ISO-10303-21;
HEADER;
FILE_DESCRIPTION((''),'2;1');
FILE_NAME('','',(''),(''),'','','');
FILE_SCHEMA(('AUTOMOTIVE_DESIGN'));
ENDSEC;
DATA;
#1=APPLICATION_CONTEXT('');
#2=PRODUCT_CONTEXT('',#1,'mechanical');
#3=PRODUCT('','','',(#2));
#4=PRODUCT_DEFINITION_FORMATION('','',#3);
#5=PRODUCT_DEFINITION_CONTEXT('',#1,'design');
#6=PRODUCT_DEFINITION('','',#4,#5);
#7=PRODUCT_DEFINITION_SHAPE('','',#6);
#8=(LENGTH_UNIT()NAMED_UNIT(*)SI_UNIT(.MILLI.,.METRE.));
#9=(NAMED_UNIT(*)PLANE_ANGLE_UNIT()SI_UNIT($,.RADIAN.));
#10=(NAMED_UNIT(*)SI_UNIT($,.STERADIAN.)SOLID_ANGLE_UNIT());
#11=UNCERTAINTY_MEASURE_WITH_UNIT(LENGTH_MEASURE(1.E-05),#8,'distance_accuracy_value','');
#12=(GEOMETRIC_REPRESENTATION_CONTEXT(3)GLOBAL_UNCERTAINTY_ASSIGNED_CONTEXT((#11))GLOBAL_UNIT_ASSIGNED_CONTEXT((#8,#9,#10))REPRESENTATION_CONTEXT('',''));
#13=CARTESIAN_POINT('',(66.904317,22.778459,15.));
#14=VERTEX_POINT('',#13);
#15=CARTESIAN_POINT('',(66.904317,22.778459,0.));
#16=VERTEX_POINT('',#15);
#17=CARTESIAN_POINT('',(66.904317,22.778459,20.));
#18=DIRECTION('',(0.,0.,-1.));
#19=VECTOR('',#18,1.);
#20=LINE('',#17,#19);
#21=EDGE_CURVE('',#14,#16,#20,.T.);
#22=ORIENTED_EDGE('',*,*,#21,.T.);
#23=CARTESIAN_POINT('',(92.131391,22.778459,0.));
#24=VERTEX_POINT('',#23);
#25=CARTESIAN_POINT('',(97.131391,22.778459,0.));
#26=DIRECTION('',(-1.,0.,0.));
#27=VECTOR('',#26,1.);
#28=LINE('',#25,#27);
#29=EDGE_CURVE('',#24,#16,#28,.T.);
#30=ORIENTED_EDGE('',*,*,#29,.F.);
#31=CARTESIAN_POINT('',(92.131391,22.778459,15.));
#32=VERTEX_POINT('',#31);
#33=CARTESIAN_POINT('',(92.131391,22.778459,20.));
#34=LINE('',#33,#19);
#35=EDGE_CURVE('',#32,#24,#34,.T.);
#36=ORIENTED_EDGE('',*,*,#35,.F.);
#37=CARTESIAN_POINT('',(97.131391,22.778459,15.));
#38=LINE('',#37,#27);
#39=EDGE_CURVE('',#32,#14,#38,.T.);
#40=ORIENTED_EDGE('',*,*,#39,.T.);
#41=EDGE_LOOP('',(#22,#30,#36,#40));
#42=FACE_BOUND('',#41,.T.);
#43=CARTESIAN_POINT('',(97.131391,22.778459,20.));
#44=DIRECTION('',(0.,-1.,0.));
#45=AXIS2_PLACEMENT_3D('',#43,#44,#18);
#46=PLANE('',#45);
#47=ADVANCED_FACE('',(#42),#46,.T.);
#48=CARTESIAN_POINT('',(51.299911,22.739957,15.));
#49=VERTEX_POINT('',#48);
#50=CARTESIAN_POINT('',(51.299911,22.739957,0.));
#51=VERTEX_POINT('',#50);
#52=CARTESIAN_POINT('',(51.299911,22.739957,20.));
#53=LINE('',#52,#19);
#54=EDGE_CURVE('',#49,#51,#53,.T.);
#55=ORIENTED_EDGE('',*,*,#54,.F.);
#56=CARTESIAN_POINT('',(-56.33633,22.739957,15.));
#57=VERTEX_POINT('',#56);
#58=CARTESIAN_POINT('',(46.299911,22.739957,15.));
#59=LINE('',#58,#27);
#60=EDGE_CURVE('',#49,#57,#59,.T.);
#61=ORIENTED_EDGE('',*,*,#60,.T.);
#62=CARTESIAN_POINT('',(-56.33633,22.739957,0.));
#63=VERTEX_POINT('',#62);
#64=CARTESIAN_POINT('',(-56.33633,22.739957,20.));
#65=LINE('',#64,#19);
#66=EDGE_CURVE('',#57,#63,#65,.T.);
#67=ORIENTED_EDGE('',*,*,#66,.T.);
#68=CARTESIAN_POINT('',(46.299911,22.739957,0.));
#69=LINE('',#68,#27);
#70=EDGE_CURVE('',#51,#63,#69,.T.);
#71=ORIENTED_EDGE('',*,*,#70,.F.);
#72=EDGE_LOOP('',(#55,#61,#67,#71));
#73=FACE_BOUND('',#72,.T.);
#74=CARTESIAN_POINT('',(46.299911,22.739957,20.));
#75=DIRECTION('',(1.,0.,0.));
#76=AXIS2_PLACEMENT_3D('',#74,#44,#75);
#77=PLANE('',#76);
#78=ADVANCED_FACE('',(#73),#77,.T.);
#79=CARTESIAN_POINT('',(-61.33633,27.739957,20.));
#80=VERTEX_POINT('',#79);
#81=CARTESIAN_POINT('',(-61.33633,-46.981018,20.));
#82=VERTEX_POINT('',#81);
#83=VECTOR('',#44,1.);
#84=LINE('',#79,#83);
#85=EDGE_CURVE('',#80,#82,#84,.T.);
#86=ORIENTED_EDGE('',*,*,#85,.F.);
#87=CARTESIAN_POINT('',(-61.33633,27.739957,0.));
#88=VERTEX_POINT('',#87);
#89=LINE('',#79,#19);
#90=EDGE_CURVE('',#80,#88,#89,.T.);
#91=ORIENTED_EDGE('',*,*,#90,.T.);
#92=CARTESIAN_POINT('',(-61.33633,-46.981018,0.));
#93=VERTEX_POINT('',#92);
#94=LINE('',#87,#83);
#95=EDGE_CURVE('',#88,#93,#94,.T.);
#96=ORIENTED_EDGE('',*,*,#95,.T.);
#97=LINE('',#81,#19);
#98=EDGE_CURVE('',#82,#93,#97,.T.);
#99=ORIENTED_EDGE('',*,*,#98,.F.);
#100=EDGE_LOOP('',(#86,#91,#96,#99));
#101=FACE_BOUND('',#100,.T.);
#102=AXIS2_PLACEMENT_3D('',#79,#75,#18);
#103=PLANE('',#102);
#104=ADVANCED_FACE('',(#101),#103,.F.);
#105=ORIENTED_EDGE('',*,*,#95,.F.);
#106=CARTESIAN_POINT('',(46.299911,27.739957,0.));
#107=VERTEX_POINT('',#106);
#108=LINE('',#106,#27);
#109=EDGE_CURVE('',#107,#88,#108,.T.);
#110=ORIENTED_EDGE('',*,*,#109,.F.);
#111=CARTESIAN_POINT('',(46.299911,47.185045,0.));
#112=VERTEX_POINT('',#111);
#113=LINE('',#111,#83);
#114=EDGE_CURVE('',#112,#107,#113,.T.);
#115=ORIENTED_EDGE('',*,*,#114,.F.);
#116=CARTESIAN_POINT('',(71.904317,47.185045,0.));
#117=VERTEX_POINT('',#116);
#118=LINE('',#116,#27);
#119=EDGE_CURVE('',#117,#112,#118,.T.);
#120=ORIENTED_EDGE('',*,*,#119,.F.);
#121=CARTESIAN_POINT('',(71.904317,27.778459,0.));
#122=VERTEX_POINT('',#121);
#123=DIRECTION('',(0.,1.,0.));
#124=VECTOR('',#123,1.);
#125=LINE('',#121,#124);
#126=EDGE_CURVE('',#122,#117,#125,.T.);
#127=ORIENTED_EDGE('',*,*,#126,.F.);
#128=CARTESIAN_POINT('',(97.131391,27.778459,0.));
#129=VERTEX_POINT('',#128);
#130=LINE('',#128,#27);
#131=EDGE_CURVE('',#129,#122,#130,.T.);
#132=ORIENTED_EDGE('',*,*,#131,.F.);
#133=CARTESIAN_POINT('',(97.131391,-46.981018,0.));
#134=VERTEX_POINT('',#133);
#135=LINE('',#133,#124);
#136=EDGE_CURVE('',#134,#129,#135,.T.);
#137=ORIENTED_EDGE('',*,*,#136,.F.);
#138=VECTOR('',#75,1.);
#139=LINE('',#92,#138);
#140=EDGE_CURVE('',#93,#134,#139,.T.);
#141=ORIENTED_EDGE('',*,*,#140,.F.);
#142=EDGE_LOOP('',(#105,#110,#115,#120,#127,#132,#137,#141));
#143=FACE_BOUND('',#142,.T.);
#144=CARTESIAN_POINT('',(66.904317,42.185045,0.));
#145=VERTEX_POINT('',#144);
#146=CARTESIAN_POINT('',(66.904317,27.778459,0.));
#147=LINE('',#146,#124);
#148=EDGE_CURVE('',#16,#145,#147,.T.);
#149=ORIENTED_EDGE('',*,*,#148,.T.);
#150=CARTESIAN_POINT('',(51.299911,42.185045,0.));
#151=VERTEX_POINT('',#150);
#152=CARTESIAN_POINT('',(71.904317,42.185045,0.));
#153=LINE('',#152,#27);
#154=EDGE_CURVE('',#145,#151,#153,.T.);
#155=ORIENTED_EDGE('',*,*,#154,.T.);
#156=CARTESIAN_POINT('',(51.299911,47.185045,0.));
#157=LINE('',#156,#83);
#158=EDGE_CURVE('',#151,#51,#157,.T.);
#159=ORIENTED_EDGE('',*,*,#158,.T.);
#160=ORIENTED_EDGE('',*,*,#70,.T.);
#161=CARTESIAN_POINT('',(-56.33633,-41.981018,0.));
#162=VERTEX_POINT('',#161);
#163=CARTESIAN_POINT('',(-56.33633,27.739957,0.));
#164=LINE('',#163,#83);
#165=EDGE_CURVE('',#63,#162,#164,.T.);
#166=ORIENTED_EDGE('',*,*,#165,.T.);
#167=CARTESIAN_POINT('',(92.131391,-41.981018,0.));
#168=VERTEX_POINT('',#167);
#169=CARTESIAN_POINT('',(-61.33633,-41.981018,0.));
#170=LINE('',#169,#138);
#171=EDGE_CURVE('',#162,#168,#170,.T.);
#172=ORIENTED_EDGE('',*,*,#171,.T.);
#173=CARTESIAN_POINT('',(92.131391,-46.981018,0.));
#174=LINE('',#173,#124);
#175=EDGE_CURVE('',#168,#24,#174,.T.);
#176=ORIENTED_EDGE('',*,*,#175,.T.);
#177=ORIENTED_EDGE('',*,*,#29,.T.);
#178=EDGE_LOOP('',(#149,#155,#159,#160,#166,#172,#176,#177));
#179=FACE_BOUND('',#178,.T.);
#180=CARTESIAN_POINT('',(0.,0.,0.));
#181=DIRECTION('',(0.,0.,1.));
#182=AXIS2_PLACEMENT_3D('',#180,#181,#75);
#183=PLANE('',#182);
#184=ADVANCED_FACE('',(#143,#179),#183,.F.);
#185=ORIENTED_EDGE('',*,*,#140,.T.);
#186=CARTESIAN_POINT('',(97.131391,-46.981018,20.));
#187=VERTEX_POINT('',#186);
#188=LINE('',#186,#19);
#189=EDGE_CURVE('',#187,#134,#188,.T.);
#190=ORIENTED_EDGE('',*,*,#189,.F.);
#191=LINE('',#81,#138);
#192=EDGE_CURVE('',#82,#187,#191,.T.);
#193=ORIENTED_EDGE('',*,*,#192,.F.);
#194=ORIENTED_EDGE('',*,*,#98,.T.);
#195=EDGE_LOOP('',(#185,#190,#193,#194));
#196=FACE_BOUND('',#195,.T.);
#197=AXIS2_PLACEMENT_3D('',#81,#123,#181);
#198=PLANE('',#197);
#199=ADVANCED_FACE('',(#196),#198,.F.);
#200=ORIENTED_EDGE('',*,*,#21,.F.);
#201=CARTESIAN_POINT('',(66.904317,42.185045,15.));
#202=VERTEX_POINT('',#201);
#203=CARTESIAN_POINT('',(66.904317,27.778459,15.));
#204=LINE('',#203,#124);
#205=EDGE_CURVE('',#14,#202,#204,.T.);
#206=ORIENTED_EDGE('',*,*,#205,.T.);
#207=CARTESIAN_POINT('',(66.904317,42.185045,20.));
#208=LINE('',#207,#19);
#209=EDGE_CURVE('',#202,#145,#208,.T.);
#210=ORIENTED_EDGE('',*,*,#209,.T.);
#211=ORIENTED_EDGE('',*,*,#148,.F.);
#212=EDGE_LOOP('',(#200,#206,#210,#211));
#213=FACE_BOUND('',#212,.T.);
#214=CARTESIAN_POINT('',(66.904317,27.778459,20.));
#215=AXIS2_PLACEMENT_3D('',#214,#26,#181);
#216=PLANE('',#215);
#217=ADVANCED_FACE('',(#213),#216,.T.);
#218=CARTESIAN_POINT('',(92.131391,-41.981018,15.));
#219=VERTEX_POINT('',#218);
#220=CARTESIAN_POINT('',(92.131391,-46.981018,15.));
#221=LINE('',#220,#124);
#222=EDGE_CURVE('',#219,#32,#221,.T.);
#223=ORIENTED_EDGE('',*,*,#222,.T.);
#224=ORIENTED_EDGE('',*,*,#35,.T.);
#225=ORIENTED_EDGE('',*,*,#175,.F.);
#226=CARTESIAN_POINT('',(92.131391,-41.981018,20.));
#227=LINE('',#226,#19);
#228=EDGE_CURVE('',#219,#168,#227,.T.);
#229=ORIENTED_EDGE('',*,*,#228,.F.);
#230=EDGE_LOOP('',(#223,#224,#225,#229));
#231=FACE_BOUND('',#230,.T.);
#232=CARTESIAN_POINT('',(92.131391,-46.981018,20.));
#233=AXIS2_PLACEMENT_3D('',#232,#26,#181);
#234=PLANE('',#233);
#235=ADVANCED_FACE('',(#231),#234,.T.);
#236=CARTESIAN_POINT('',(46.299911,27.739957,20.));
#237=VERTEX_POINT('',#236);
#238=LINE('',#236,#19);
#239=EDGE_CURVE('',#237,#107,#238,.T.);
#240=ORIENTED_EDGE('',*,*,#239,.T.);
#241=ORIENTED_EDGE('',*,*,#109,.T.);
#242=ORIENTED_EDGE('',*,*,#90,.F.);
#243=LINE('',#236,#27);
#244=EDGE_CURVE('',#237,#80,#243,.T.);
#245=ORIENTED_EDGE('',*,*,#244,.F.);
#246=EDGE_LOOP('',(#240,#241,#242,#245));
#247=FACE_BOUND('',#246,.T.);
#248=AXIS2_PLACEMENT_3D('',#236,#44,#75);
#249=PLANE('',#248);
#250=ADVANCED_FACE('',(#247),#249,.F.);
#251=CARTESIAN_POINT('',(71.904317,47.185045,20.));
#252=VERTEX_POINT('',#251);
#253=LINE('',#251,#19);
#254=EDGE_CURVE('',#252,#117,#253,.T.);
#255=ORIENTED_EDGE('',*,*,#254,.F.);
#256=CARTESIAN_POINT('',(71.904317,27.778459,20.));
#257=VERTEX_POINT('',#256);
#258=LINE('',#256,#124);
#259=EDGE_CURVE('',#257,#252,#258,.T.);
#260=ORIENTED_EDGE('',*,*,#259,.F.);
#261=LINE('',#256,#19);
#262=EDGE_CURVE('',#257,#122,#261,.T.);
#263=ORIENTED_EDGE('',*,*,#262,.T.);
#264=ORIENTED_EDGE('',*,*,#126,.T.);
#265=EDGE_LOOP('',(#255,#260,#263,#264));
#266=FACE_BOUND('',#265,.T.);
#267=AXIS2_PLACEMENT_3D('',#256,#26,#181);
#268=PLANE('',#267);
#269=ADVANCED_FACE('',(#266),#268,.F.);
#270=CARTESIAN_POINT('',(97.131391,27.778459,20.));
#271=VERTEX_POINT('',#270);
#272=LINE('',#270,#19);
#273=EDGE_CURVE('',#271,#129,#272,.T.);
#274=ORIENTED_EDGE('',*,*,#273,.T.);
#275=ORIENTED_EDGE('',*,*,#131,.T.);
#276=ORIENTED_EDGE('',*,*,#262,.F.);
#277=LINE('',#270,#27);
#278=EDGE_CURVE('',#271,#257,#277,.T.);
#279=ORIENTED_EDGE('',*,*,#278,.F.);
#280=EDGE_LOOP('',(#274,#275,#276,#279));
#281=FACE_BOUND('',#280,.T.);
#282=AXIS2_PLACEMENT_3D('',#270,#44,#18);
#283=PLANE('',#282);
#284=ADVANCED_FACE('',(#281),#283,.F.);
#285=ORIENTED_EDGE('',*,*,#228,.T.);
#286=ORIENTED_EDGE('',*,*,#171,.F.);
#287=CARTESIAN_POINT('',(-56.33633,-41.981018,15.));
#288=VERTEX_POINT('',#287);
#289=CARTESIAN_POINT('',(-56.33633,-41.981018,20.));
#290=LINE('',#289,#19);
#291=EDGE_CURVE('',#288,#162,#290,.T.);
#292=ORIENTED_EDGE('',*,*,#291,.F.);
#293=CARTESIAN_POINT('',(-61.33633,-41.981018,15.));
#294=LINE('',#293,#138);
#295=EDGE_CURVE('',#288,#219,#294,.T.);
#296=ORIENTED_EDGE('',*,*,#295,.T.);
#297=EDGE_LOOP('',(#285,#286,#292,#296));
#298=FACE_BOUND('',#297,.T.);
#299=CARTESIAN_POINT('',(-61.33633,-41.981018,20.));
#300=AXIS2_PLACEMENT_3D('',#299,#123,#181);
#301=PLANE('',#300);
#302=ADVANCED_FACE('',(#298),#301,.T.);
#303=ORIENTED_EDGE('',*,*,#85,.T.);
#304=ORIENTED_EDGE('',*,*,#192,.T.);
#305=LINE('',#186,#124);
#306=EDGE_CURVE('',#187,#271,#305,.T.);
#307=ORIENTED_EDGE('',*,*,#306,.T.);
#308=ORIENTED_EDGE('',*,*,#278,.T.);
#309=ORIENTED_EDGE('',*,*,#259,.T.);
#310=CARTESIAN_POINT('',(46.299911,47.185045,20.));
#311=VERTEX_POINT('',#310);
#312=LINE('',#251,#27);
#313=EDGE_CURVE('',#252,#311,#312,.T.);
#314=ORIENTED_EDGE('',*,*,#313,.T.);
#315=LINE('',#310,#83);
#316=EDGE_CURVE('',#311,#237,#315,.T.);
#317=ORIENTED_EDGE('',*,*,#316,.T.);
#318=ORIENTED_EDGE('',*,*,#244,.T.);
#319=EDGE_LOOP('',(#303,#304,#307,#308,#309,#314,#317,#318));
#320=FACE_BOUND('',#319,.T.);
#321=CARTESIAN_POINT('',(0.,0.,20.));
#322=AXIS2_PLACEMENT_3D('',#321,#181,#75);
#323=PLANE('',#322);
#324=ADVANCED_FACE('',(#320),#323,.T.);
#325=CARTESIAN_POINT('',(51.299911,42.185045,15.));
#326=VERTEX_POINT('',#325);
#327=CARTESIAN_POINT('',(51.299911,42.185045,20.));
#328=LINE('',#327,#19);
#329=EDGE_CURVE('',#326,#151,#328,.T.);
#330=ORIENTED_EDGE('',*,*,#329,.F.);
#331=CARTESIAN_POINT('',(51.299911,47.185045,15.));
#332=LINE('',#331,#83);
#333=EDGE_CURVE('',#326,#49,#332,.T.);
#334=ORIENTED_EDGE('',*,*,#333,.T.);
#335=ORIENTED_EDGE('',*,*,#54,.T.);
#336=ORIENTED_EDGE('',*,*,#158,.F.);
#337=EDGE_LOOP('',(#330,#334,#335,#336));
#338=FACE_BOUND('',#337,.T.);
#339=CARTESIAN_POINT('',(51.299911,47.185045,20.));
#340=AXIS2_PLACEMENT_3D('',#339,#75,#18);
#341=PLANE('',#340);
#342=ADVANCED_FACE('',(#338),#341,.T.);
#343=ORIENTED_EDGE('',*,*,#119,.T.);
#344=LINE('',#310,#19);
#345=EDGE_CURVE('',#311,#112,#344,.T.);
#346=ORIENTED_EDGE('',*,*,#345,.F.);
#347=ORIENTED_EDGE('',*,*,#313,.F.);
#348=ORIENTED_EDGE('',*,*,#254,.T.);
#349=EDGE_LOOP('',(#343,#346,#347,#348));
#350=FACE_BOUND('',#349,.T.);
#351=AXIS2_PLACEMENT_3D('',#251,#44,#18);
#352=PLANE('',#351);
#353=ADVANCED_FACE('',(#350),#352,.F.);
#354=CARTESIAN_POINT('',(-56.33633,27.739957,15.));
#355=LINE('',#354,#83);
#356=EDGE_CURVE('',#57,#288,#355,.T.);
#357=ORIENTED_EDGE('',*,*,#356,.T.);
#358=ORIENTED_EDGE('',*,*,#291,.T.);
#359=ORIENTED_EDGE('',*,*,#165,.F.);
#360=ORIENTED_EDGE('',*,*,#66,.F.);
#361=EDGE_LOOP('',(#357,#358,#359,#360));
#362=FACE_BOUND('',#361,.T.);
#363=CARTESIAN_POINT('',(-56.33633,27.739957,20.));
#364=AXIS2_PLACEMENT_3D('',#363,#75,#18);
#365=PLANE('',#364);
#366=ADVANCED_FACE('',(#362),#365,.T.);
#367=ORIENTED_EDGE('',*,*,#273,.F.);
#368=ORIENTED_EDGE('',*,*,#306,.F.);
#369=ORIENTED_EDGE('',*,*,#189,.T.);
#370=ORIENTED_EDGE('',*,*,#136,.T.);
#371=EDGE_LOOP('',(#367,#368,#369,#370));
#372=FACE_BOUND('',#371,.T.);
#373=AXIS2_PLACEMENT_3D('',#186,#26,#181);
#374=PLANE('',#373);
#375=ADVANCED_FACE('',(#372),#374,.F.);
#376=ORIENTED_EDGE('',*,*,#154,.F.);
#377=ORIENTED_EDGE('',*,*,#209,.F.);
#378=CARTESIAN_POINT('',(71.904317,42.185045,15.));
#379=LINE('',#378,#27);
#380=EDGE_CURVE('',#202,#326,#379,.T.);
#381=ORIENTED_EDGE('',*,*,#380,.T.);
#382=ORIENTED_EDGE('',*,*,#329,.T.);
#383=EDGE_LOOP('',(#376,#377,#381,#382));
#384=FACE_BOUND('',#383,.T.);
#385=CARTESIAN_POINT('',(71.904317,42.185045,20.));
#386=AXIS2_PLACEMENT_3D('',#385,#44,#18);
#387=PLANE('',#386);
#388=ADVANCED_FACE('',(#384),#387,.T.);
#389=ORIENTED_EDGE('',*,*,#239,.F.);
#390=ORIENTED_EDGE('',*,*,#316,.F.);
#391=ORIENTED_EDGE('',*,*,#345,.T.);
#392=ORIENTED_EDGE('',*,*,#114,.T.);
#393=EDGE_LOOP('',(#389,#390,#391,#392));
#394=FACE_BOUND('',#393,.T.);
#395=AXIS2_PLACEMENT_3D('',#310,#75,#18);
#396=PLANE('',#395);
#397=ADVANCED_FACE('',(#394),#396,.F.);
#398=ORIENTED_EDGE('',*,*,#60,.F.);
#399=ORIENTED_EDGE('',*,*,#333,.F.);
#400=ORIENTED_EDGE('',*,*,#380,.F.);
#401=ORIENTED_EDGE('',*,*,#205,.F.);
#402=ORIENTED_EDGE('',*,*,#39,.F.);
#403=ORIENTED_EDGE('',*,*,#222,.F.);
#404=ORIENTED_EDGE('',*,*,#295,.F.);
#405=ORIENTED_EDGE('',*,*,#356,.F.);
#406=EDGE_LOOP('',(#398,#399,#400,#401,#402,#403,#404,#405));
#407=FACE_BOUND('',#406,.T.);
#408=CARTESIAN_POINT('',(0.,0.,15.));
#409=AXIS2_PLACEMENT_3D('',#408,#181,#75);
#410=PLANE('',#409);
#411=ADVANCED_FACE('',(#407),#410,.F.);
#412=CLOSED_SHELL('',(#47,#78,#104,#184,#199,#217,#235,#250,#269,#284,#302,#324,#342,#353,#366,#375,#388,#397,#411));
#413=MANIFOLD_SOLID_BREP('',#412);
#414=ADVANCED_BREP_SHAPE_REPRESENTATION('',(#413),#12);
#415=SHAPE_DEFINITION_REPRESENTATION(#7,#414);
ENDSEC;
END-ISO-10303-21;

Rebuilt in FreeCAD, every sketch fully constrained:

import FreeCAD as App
import Part
import Sketcher
from FreeCAD import Vector


def faces_at(feature, points):
    """Names of the faces that lie closest to the given points."""
    faces = feature.Shape.Faces
    near = lambda p: min(range(len(faces)), key=lambda i: faces[i].distToShape(Part.Vertex(*p))[0])
    return sorted({f"Face{near(p) + 1}" for p in points})

doc = App.newDocument("Part")
body = doc.addObject("PartDesign::Body", "Body")

# Sketch on XY plane
sketch1 = doc.addObject("Sketcher::SketchObject", "Sketch")
body.addObject(sketch1)
sketch1.AttachmentSupport = (doc.XY_Plane, [""])
sketch1.MapMode = "FlatFace"
sketch1.addGeometry(Part.LineSegment(Vector(-61.33633, -46.981018, 0), Vector(97.131391, -46.981018, 0)), False)
sketch1.addGeometry(Part.LineSegment(Vector(97.131391, -46.981018, 0), Vector(97.131391, 27.778459, 0)), False)
sketch1.addGeometry(Part.LineSegment(Vector(97.131391, 27.778459, 0), Vector(71.904317, 27.778459, 0)), False)
sketch1.addGeometry(Part.LineSegment(Vector(71.904317, 27.778459, 0), Vector(71.904317, 47.185045, 0)), False)
sketch1.addGeometry(Part.LineSegment(Vector(71.904317, 47.185045, 0), Vector(46.299911, 47.185045, 0)), False)
sketch1.addGeometry(Part.LineSegment(Vector(46.299911, 47.185045, 0), Vector(46.299911, 27.739957, 0)), False)
sketch1.addGeometry(Part.LineSegment(Vector(46.299911, 27.739957, 0), Vector(-61.33633, 27.739957, 0)), False)
sketch1.addGeometry(Part.LineSegment(Vector(-61.33633, 27.739957, 0), Vector(-61.33633, -46.981018, 0)), False)
sketch1.addConstraint(Sketcher.Constraint("Coincident", 0, 2, 1, 1))
sketch1.addConstraint(Sketcher.Constraint("Coincident", 1, 2, 2, 1))
sketch1.addConstraint(Sketcher.Constraint("Coincident", 2, 2, 3, 1))
sketch1.addConstraint(Sketcher.Constraint("Coincident", 3, 2, 4, 1))
sketch1.addConstraint(Sketcher.Constraint("Coincident", 4, 2, 5, 1))
sketch1.addConstraint(Sketcher.Constraint("Coincident", 5, 2, 6, 1))
sketch1.addConstraint(Sketcher.Constraint("Coincident", 6, 2, 7, 1))
sketch1.addConstraint(Sketcher.Constraint("Coincident", 7, 2, 0, 1))
sketch1.addConstraint(Sketcher.Constraint("Horizontal", 0))
sketch1.addConstraint(Sketcher.Constraint("Vertical", 1))
sketch1.addConstraint(Sketcher.Constraint("Horizontal", 2))
sketch1.addConstraint(Sketcher.Constraint("Vertical", 3))
sketch1.addConstraint(Sketcher.Constraint("Horizontal", 4))
sketch1.addConstraint(Sketcher.Constraint("Vertical", 5))
sketch1.addConstraint(Sketcher.Constraint("Horizontal", 6))
sketch1.addConstraint(Sketcher.Constraint("Vertical", 7))
sketch1.addConstraint(Sketcher.Constraint("DistanceX", 0, 1, 0, 2, 158.467721))
sketch1.addConstraint(Sketcher.Constraint("DistanceX", 6, 2, 6, 1, 107.636241))
sketch1.addConstraint(Sketcher.Constraint("DistanceY", 5, 2, 2, 2, 0.038502))
sketch1.addConstraint(Sketcher.Constraint("DistanceX", 2, 2, 2, 1, 25.227074))
sketch1.addConstraint(Sketcher.Constraint("DistanceY", 1, 1, 1, 2, 74.759478))
sketch1.addConstraint(Sketcher.Constraint("DistanceY", 3, 1, 3, 2, 19.406586))
sketch1.addConstraint(Sketcher.Constraint("DistanceX", -1, 1, 0, 2, 97.131391))
sketch1.addConstraint(Sketcher.Constraint("DistanceY", 0, 2, -1, 1, 46.981018))
pad1 = doc.addObject("PartDesign::Pad", "Pad")
body.addObject(pad1)
pad1.Profile = sketch1
pad1.Length = 20
doc.recompute()

thickness = doc.addObject("PartDesign::Thickness", "Thickness")
body.addObject(thickness)
thickness.Base = (pad1, faces_at(pad1, [(17.898, 0.102, 0)]))
thickness.Value = 5
thickness.Reversed = True
thickness.Join = "Intersection"

doc.recompute()
